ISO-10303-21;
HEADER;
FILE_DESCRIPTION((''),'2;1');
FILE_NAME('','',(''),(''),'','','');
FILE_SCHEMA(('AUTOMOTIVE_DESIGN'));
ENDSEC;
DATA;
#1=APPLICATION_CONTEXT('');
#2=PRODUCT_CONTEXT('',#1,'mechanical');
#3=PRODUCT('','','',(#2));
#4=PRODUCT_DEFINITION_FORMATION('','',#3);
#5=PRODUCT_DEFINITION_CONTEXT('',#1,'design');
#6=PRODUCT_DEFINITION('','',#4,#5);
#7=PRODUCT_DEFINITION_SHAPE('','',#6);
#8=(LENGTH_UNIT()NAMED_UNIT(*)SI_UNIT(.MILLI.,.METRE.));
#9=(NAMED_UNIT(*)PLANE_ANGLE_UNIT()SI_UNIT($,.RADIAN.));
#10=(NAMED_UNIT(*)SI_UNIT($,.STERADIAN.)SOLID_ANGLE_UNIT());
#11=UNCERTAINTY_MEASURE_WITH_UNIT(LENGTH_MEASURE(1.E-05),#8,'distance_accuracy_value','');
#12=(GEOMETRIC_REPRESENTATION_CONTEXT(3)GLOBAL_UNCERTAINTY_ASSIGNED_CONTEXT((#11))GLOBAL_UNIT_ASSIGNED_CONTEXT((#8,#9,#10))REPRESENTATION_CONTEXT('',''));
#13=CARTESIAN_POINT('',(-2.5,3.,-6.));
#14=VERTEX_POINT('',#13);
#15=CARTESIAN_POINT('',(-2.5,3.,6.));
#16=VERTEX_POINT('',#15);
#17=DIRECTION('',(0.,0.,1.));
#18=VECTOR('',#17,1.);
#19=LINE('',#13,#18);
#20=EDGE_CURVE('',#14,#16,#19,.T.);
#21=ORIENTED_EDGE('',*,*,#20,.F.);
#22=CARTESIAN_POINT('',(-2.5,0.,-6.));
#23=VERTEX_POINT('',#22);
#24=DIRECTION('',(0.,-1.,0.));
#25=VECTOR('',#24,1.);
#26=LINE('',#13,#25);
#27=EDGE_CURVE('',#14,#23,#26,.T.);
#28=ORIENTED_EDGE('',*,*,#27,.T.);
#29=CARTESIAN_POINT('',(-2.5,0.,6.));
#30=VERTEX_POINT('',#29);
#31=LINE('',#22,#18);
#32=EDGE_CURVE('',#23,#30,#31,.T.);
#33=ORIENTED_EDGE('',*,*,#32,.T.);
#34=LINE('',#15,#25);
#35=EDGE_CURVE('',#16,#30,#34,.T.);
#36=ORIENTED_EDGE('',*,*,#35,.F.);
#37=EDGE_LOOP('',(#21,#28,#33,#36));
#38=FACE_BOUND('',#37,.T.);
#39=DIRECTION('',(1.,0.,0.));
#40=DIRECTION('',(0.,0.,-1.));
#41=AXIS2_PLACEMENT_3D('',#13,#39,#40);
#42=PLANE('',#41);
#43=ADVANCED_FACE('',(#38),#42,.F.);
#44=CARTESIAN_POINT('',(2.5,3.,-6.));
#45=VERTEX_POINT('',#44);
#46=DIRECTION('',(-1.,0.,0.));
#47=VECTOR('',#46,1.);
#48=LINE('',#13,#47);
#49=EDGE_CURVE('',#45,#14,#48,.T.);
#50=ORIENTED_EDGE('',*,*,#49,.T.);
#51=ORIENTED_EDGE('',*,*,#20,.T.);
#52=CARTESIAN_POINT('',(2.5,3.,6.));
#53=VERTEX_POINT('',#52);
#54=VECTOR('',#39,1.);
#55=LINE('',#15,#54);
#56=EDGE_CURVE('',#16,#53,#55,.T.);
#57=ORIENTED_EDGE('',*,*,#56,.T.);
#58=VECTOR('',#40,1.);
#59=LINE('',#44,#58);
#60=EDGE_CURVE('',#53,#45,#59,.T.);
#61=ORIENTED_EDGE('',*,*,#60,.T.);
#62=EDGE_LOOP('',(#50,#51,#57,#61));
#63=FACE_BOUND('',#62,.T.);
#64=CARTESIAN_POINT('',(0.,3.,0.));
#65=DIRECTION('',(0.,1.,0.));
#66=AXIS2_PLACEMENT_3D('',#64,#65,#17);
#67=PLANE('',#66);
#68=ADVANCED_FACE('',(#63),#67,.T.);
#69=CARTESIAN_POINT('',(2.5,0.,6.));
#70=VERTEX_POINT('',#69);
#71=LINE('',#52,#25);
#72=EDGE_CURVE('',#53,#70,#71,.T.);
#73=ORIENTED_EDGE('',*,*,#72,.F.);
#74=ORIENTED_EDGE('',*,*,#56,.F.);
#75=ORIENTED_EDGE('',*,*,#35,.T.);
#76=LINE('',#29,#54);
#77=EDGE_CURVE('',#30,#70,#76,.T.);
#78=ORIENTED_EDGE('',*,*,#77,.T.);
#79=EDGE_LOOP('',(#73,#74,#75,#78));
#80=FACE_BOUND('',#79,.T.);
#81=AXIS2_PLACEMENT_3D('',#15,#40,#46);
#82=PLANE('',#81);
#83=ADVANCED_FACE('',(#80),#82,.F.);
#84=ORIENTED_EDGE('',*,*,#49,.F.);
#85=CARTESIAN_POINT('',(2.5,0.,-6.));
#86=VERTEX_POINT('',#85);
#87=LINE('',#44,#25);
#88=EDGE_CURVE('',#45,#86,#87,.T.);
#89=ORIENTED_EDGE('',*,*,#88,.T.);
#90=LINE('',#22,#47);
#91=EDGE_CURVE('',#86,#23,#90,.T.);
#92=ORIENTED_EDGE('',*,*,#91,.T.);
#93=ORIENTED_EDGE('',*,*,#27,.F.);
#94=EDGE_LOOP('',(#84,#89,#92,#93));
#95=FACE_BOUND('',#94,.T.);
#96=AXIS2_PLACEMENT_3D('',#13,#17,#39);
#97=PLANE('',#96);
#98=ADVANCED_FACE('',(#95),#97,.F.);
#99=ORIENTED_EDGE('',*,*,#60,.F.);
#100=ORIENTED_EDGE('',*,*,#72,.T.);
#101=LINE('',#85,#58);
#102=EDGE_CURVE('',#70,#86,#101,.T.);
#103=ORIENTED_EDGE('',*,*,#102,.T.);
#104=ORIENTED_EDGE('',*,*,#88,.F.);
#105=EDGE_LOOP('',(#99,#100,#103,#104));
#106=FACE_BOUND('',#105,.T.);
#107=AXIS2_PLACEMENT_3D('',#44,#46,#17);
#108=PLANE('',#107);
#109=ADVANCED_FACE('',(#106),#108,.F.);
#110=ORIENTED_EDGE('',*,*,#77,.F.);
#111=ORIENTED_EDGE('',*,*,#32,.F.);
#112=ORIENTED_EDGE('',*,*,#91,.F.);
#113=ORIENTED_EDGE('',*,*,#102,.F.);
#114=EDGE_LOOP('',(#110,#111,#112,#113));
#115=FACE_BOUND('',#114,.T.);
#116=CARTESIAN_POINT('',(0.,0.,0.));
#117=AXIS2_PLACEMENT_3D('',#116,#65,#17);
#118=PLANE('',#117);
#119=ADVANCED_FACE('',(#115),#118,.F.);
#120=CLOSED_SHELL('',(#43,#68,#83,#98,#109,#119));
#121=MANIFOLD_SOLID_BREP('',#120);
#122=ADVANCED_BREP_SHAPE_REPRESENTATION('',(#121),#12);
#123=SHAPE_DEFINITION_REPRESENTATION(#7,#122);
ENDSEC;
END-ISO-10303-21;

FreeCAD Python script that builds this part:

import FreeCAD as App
import Part
import Sketcher

doc = App.newDocument("Part")
body = doc.addObject("PartDesign::Body", "Body")

sketch1 = body.newObject("Sketcher::SketchObject", "Sketch")
sketch1.AttachmentSupport = (doc.getObject("XZ_Plane"), [""])
sketch1.MapMode = "FlatFace"
sketch1.addGeometry(Part.LineSegment(App.Vector(-2, -6, 0), App.Vector(-2, 6, 0)), False)
sketch1.addGeometry(Part.LineSegment(App.Vector(-2, 6, 0), App.Vector(2, 6, 0)), False)
sketch1.addGeometry(Part.LineSegment(App.Vector(2, 6, 0), App.Vector(2, -6, 0)), False)
sketch1.addGeometry(Part.LineSegment(App.Vector(2, -6, 0), App.Vector(-2, -6, 0)), False)
sketch1.addConstraint(Sketcher.Constraint("Coincident", 0, 2, 1, 1))
sketch1.addConstraint(Sketcher.Constraint("Coincident", 1, 2, 2, 1))
sketch1.addConstraint(Sketcher.Constraint("Coincident", 2, 2, 3, 1))
sketch1.addConstraint(Sketcher.Constraint("Coincident", 3, 2, 0, 1))
sketch1.addConstraint(Sketcher.Constraint("Vertical", 0))
sketch1.addConstraint(Sketcher.Constraint("Horizontal", 1))
sketch1.addConstraint(Sketcher.Constraint("Vertical", 2))
sketch1.addConstraint(Sketcher.Constraint("Horizontal", 3))
sketch1.addConstraint(Sketcher.Constraint("Symmetric", 0, 2, 2, 2, -1, 1))
sketch1.addConstraint(Sketcher.Constraint("DistanceX", 1, 1, 1, 2, 5.0))
sketch1.addConstraint(Sketcher.Constraint("DistanceY", 0, 1, 0, 2, 12.0))
pad1 = body.newObject("PartDesign::Pad", "Pad")
pad1.Profile = sketch1
pad1.Length = 3
pad1.Reversed = True

doc.recompute()
